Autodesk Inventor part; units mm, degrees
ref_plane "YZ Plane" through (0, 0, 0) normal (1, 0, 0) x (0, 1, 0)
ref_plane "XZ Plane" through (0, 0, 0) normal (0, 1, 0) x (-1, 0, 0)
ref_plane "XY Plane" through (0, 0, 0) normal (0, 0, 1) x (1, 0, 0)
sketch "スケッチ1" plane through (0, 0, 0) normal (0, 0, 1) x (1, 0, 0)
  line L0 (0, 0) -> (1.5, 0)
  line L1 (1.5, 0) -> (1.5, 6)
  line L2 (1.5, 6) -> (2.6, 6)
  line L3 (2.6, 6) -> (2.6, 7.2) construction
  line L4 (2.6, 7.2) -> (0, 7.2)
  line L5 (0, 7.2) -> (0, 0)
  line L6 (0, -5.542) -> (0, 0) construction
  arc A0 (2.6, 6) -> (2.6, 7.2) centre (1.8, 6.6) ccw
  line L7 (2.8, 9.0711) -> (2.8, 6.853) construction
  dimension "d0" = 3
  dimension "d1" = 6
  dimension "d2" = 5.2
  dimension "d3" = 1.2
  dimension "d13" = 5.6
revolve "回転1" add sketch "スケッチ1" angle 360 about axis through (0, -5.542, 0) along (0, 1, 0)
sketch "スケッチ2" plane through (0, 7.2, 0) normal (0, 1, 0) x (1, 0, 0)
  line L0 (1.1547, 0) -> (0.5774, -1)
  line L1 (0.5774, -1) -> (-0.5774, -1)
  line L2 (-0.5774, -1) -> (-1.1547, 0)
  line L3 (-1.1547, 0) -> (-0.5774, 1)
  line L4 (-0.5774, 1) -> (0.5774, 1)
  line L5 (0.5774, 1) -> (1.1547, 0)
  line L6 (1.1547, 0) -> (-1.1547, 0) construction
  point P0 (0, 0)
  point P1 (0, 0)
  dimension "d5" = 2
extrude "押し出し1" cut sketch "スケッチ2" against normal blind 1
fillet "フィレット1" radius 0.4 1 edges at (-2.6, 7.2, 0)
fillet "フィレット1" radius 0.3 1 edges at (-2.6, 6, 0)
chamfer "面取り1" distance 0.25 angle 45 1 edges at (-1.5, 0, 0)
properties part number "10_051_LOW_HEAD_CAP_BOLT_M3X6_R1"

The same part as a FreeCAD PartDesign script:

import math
import FreeCAD as App
import Part
import Sketcher

V = App.Vector
Q = App.Units.Quantity


def edges_at(feature, points):
    """Names of the edges that pass closest to the given points."""
    edges = feature.Shape.Edges
    near = lambda p: min(range(len(edges)), key=lambda i: edges[i].distToShape(Part.Vertex(*p))[0])
    return sorted({f"Edge{near(p) + 1}" for p in points})

doc = App.newDocument("Part")
body = doc.addObject("PartDesign::Body", "Body")

# Sketch on XY plane
sketch1 = body.newObject("Sketcher::SketchObject", "Sketch")
sketch1.AttachmentSupport = (doc.getObject("XY_Plane"), [""])
sketch1.MapMode = "FlatFace"
sketch1.addGeometry([
    Part.LineSegment(V(0, 7.2, 0), V(0, 0, 0)),  # 0
    Part.LineSegment(V(0, 0, 0), V(1.5, 0, 0)),  # 1
    Part.LineSegment(V(1.5, 0, 0), V(1.5, 6, 0)),  # 2
    Part.LineSegment(V(1.5, 6, 0), V(2.6, 6, 0)),  # 3
    Part.ArcOfCircle(Part.Circle(V(1.8, 6.6, 0), V(0, 0, 1), 1), math.radians(-37), math.radians(37)),  # 4
    Part.LineSegment(V(2.6, 7.2, 0), V(0, 7.2, 0)),  # 5
], False)
sketch1.addConstraint([
    Sketcher.Constraint("Coincident", 0, 2, 1, 1),
    Sketcher.Constraint("Coincident", 1, 2, 2, 1),
    Sketcher.Constraint("Coincident", 2, 2, 3, 1),
    Sketcher.Constraint("Coincident", 3, 2, 4, 1),
    Sketcher.Constraint("Coincident", 4, 2, 5, 1),
    Sketcher.Constraint("Coincident", 5, 2, 0, 1),
    Sketcher.Constraint("Vertical", 0),
    Sketcher.Constraint("Horizontal", 1),
    Sketcher.Constraint("Vertical", 2),
    Sketcher.Constraint("Horizontal", 3),
    Sketcher.Constraint("Horizontal", 5),
    Sketcher.Constraint("Coincident", 0, 2, -1, 1),
    Sketcher.Constraint("Vertical", 3, 2, 4, 2),
    Sketcher.Constraint("DistanceY", 2, 1, 2, 2, Q("6 mm")),
    Sketcher.Constraint("Radius", 4, Q("1 mm")),
    Sketcher.Constraint("DistanceY", 3, 2, 4, 2, Q("1.2 mm")),
    Sketcher.Constraint("DistanceX", 1, 1, 1, 2, Q("1.5 mm")),
    Sketcher.Constraint("DistanceX", 3, 1, 3, 2, Q("1.1 mm")),
])
revolution = body.newObject("PartDesign::Revolution", "Revolution")
revolution.Profile = sketch1
revolution.ReferenceAxis = (sketch1, ["V_Axis"])
revolution.Angle = 360

# Sketch on XZ plane
sketch2 = body.newObject("Sketcher::SketchObject", "Sketch001")
sketch2.AttachmentSupport = (doc.getObject("XZ_Plane"), [""])
sketch2.MapMode = "FlatFace"
sketch2.AttachmentOffset = App.Placement(V(0, 0, -7.2), App.Rotation())
sketch2.addGeometry([
    Part.LineSegment(V(0.6, 1, 0), V(1.2, 0, 0)),  # 0
    Part.LineSegment(V(1.2, 0, 0), V(0.6, -1, 0)),  # 1
    Part.LineSegment(V(0.6, -1, 0), V(-0.6, -1, 0)),  # 2
    Part.LineSegment(V(-0.6, -1, 0), V(-1.2, 0, 0)),  # 3
    Part.LineSegment(V(-1.2, 0, 0), V(-0.6, 1, 0)),  # 4
    Part.LineSegment(V(-0.6, 1, 0), V(0.6, 1, 0)),  # 5
], False)
sketch2.addConstraint([
    Sketcher.Constraint("Coincident", 0, 2, 1, 1),
    Sketcher.Constraint("Coincident", 1, 2, 2, 1),
    Sketcher.Constraint("Coincident", 2, 2, 3, 1),
    Sketcher.Constraint("Coincident", 3, 2, 4, 1),
    Sketcher.Constraint("Coincident", 4, 2, 5, 1),
    Sketcher.Constraint("Coincident", 5, 2, 0, 1),
    Sketcher.Constraint("Horizontal", 2),
    Sketcher.Constraint("Horizontal", 5),
    Sketcher.Constraint("Symmetric", 0, 2, 3, 2, -1, 1),
    Sketcher.Constraint("Symmetric", 1, 2, 4, 2, -1, 1),
    Sketcher.Constraint("PointOnObject", 0, 2, -1),
    Sketcher.Constraint("Parallel", 0, 3),
    Sketcher.Constraint("Vertical", 2, 2, 4, 2),
    Sketcher.Constraint("DistanceY", 2, 2, 4, 2, Q("2 mm")),
    Sketcher.Constraint("DistanceX", 2, 2, 2, 1, Q("1.1548 mm")),
    Sketcher.Constraint("DistanceX", 2, 2, 0, 2, Q("1.732 mm")),
])
pocket1 = body.newObject("PartDesign::Pocket", "Pocket")
pocket1.Profile = sketch2
pocket1.Length = 1
pocket1.Reversed = True
doc.recompute()

fillet = body.newObject("PartDesign::Fillet", "Fillet")
fillet.Base = (pocket1, edges_at(pocket1, [(-2.6, 7.2, 0)]))
fillet.Radius = 0.4
doc.recompute()

fillet2 = body.newObject("PartDesign::Fillet", "Fillet001")
fillet2.Base = (fillet, edges_at(fillet, [(-2.6, 6, 0)]))
fillet2.Radius = 0.3
doc.recompute()

chamfer = body.newObject("PartDesign::Chamfer", "Chamfer")
chamfer.Base = (fillet2, edges_at(fillet2, [(-1.5, 0, 0)]))
chamfer.Size = 0.25

doc.recompute()
